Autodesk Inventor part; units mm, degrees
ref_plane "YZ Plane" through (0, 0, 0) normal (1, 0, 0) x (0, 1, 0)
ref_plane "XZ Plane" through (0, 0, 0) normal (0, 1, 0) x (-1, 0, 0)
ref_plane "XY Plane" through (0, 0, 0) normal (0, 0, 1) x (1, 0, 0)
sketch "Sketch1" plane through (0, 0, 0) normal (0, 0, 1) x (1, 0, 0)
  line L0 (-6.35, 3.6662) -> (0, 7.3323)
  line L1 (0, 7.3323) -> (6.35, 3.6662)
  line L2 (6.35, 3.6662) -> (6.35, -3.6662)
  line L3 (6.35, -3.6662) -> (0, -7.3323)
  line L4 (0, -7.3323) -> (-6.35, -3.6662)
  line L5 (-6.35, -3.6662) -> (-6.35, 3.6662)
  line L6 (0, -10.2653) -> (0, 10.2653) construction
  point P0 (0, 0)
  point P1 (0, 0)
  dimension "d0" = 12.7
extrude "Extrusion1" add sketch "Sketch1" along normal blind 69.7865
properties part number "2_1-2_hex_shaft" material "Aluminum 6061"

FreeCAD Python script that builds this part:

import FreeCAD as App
import Part
import Sketcher
from FreeCAD import Vector
Q = App.Units.Quantity

doc = App.newDocument("Part")
params = doc.addObject("Spreadsheet::Sheet", "Params")
for row, (alias, value) in enumerate([
    ("pad1_length", "69.7865 mm"),
], start=1):
    params.set(f"A{row}", alias)
    params.set(f"B{row}", "=" + value)
    params.setAlias(f"B{row}", alias)

body = doc.addObject("PartDesign::Body", "Body")

sketch1 = body.newObject("Sketcher::SketchObject", "Sketch")
sketch1.AttachmentSupport = (doc.getObject("XY_Plane"), [""])
sketch1.MapMode = "FlatFace"
sketch1.addGeometry([
    Part.LineSegment(Vector(0, 7, 0), Vector(-6, 4, 0)),
    Part.LineSegment(Vector(-6, 4, 0), Vector(-6, -4, 0)),
    Part.LineSegment(Vector(-6, -4, 0), Vector(0, -7, 0)),
    Part.LineSegment(Vector(0, -7, 0), Vector(6, -4, 0)),
    Part.LineSegment(Vector(6, -4, 0), Vector(6, 4, 0)),
    Part.LineSegment(Vector(6, 4, 0), Vector(0, 7, 0)),
], False)
sketch1.addConstraint([
    Sketcher.Constraint("Coincident", 0, 2, 1, 1),
    Sketcher.Constraint("Coincident", 1, 2, 2, 1),
    Sketcher.Constraint("Coincident", 2, 2, 3, 1),
    Sketcher.Constraint("Coincident", 3, 2, 4, 1),
    Sketcher.Constraint("Coincident", 4, 2, 5, 1),
    Sketcher.Constraint("Coincident", 5, 2, 0, 1),
    Sketcher.Constraint("Vertical", 1),
    Sketcher.Constraint("Vertical", 4),
    Sketcher.Constraint("Symmetric", 0, 2, 3, 2, -1, 1),
    Sketcher.Constraint("Symmetric", 2, 2, 5, 2, -1, 1),
    Sketcher.Constraint("PointOnObject", 2, 2, -2),
    Sketcher.Constraint("Parallel", 2, 5),
    Sketcher.Constraint("Horizontal", 1, 2, 3, 2),
    Sketcher.Constraint("DistanceX", 1, 2, 3, 2, Q("12.7 mm")),
    Sketcher.Constraint("Angle", 0, Q("-150.0005 deg")),
    Sketcher.Constraint("DistanceY", 1, 2, 1, 1, Q("7.3324 mm")),
])
pad1 = body.newObject("PartDesign::Pad", "Pad")
pad1.Profile = sketch1
pad1.setExpression("Length", "Params.pad1_length")

doc.recompute()
